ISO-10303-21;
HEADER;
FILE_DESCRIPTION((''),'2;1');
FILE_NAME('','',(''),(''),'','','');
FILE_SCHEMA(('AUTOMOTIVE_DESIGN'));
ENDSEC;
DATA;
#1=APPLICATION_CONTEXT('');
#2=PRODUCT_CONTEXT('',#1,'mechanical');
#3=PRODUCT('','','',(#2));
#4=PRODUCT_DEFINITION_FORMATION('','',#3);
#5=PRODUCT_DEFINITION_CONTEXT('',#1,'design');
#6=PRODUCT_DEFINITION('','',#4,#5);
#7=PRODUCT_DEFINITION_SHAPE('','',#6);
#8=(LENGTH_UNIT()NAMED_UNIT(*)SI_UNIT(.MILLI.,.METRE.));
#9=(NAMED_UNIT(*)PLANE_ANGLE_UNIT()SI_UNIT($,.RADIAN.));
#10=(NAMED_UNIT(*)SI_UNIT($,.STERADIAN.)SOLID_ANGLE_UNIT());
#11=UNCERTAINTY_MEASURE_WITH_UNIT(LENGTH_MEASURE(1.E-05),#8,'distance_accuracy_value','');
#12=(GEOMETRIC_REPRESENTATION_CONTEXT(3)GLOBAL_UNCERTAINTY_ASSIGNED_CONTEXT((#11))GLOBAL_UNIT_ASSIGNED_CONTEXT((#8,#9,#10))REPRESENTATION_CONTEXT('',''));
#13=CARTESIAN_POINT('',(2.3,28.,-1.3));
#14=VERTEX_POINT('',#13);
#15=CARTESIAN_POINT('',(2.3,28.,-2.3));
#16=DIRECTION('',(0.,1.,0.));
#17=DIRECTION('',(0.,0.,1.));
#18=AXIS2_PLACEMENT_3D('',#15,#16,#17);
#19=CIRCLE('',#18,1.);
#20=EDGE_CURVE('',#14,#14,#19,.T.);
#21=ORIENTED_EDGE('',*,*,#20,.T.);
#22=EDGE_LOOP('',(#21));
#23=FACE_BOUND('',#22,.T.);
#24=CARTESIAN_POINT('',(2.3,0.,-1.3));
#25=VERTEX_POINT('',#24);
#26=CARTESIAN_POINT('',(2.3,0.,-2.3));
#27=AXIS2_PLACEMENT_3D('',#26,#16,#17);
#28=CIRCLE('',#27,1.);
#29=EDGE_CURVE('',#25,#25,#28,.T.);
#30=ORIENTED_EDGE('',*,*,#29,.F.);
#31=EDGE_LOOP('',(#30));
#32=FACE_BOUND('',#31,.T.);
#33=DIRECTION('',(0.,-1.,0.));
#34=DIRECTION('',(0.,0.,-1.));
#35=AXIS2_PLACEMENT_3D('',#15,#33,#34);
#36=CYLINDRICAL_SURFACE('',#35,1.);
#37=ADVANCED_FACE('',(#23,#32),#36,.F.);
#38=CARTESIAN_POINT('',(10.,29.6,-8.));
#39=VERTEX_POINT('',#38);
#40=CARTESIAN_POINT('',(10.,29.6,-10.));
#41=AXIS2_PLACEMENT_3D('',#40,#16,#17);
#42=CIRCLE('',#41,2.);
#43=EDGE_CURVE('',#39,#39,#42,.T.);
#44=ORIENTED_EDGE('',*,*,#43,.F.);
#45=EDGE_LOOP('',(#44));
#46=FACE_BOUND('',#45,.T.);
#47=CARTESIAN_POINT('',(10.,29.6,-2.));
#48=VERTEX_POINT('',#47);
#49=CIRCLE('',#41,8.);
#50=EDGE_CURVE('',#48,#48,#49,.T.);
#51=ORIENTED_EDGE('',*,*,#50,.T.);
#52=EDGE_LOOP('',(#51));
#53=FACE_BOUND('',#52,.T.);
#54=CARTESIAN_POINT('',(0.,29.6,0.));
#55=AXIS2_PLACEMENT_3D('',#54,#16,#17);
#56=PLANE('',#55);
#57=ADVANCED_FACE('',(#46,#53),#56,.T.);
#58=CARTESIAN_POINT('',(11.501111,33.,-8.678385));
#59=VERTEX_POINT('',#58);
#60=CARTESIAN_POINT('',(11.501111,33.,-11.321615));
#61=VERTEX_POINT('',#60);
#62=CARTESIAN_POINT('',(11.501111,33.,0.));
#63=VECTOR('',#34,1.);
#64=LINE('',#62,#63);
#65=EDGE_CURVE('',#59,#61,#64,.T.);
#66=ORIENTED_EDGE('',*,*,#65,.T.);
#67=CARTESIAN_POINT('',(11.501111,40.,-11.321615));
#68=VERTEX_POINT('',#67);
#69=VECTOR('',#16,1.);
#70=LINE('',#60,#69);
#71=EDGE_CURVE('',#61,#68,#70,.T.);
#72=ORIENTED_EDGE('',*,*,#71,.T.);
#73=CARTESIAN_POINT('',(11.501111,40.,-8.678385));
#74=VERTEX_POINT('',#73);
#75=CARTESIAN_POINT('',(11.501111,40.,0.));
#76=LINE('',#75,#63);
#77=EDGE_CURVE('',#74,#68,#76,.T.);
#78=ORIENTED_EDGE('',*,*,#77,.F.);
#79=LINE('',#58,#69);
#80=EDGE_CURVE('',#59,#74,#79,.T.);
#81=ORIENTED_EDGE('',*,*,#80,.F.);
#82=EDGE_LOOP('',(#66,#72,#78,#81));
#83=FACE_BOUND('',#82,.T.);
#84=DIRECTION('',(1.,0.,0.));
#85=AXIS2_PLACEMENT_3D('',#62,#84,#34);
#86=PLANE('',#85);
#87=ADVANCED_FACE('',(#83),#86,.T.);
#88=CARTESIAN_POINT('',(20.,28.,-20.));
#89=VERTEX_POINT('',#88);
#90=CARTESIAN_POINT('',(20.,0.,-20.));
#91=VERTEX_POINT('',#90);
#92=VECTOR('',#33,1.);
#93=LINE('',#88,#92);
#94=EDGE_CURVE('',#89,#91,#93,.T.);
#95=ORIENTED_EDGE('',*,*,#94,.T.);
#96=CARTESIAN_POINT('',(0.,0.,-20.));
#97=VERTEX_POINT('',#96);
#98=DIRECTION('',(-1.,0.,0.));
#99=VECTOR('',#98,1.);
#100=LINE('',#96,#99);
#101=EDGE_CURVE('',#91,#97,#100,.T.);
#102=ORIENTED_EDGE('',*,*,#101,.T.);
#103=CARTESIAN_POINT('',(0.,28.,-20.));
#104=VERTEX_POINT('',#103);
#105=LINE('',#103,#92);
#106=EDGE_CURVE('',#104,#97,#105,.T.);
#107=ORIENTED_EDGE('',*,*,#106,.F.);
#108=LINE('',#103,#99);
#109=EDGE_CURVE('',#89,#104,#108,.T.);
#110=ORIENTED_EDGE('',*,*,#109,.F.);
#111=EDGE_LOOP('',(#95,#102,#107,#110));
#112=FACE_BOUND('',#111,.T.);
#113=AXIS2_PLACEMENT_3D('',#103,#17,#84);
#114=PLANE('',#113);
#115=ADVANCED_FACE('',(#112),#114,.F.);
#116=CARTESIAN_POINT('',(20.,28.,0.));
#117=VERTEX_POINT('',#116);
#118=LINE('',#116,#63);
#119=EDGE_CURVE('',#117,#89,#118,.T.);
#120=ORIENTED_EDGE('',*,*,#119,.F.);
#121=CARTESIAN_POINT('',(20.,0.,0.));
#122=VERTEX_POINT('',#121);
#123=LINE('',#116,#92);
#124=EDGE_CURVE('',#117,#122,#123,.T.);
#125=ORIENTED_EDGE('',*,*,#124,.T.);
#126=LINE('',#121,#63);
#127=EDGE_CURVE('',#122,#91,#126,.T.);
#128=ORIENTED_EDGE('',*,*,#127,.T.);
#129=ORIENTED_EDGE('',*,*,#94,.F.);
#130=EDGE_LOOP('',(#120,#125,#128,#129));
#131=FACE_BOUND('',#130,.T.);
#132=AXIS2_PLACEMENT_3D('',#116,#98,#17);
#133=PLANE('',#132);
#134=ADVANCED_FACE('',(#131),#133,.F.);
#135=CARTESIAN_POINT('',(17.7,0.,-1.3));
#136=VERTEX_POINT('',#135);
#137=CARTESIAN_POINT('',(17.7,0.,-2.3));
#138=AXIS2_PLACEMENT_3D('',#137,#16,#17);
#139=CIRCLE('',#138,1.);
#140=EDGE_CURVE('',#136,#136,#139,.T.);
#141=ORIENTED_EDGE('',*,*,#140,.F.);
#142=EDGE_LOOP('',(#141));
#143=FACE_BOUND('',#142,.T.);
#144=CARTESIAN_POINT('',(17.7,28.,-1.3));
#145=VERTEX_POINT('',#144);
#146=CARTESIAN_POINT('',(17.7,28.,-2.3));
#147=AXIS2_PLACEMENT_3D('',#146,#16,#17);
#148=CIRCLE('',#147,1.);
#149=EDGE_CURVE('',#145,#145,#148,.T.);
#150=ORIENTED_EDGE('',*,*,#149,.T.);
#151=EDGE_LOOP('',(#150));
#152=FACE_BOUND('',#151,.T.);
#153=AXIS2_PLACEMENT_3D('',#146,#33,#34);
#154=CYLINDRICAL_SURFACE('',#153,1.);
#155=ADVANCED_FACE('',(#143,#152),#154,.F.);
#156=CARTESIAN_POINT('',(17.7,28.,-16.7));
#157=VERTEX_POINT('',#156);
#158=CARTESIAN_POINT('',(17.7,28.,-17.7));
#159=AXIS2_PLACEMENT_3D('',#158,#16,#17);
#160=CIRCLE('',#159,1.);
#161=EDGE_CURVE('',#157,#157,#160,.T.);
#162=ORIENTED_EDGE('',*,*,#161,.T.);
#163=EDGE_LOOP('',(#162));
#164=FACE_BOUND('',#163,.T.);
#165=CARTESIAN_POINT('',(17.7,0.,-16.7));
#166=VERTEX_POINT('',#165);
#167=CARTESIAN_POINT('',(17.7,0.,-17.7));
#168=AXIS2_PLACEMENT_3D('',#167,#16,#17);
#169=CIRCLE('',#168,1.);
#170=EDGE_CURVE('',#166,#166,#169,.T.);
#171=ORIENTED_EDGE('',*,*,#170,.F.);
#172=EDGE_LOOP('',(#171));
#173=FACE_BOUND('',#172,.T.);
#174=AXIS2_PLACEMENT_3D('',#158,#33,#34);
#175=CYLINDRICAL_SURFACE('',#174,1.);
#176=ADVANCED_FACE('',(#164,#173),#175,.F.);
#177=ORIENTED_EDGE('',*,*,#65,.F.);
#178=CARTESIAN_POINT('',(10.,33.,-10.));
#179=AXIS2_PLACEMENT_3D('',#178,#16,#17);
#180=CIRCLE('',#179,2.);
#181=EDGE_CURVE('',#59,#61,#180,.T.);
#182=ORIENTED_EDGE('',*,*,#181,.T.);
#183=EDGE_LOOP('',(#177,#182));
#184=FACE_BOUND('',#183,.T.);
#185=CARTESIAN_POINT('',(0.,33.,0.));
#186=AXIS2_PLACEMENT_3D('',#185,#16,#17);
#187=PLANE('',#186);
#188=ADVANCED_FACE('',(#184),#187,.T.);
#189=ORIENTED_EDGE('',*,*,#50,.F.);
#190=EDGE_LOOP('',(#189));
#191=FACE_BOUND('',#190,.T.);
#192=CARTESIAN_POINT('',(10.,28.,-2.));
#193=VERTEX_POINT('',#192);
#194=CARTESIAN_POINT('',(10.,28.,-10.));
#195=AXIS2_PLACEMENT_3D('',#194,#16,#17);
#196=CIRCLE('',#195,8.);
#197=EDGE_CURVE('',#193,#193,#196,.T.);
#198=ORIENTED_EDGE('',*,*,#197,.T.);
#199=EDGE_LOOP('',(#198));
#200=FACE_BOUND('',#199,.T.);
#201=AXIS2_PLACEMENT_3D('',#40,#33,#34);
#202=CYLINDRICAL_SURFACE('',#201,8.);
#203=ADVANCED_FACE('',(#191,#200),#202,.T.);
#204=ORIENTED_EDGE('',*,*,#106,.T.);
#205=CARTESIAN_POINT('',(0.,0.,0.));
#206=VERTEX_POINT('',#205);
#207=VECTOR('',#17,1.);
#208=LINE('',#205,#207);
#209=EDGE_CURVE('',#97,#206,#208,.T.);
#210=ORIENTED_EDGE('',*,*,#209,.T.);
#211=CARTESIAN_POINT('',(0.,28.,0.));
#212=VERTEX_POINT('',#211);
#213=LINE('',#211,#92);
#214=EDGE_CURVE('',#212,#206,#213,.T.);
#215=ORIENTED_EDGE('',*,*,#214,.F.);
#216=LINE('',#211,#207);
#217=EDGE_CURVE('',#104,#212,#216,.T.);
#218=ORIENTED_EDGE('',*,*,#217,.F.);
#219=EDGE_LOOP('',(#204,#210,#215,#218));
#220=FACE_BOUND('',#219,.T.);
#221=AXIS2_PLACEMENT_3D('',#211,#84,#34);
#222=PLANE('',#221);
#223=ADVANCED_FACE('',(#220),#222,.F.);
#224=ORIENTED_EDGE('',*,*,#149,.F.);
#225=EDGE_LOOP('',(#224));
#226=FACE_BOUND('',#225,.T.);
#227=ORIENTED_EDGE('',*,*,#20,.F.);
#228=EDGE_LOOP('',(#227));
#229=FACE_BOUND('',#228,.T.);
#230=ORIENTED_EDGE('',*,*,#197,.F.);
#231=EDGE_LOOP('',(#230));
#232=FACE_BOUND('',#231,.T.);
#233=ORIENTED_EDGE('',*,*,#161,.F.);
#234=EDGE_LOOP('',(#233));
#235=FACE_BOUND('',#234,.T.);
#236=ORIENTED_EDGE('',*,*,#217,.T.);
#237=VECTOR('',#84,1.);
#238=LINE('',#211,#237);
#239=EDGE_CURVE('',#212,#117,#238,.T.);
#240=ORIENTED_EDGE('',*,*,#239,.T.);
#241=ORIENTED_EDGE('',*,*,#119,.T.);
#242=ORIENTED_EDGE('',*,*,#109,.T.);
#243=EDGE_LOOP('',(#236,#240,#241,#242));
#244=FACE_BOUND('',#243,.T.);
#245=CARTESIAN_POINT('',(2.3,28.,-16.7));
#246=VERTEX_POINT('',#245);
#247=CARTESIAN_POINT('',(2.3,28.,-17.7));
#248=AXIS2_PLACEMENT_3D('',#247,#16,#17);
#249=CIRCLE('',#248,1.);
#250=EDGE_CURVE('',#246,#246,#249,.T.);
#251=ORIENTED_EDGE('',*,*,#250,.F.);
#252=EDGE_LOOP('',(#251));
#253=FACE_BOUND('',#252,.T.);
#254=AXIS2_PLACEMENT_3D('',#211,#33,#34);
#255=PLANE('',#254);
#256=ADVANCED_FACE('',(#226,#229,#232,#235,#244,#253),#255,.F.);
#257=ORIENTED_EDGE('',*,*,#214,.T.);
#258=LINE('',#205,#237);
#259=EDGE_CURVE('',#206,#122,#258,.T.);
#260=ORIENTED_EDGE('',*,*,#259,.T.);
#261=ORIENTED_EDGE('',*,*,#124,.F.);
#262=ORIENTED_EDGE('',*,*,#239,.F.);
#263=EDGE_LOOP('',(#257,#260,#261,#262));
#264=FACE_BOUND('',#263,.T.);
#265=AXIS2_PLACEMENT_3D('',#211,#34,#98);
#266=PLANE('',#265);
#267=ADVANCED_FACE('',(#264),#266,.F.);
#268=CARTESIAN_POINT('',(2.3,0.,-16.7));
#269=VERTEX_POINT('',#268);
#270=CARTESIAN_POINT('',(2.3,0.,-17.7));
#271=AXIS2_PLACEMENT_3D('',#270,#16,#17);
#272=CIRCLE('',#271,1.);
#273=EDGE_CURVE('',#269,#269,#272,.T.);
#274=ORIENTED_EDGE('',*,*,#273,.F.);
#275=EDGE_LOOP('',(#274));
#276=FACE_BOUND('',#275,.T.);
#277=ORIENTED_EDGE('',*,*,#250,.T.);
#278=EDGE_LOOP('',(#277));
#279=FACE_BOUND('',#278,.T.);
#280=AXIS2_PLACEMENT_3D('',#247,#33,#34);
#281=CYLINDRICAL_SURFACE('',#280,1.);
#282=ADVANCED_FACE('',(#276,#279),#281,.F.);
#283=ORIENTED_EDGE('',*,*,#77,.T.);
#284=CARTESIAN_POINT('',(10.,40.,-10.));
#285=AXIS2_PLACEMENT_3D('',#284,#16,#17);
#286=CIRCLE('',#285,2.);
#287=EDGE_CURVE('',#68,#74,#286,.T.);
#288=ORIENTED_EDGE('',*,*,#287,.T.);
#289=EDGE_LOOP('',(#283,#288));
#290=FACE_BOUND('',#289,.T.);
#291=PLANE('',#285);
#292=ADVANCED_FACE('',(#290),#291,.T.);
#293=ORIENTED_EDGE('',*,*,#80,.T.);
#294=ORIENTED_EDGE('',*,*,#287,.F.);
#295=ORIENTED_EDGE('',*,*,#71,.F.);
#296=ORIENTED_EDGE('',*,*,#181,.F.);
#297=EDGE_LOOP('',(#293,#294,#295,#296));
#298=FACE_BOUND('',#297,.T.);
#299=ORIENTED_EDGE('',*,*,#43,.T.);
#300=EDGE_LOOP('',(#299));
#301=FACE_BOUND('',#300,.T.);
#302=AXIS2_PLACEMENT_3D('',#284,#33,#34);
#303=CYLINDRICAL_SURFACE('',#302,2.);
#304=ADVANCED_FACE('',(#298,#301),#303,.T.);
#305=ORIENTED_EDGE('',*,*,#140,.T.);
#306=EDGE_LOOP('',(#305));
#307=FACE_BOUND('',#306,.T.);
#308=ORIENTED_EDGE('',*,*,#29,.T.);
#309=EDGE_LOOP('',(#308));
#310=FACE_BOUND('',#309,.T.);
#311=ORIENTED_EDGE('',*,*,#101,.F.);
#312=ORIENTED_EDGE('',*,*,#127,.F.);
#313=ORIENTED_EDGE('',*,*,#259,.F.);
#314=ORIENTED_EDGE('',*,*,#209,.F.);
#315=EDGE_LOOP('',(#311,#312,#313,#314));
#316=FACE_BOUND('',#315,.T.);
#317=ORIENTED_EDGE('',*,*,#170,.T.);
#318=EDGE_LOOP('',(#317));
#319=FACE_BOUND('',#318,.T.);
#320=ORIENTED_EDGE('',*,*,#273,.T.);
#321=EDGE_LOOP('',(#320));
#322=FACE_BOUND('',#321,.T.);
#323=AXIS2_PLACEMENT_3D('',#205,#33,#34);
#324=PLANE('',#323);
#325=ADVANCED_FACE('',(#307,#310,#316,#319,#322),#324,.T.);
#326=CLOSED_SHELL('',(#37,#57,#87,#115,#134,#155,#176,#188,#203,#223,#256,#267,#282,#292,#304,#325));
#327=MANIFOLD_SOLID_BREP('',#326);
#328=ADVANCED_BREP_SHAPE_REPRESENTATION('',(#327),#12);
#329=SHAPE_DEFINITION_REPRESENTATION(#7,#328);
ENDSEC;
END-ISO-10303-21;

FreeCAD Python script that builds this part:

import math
import FreeCAD as App
import Part
import Sketcher
Q = App.Units.Quantity

doc = App.newDocument("Part")
body = doc.addObject("PartDesign::Body", "Body")

sketch1 = body.newObject("Sketcher::SketchObject", "Sketch")
sketch1.AttachmentSupport = (doc.getObject("XZ_Plane"), [""])
sketch1.MapMode = "FlatFace"
sketch1.addGeometry(Part.LineSegment(App.Vector(0, -20, 0), App.Vector(0, 0, 0)), False)
sketch1.addGeometry(Part.LineSegment(App.Vector(0, 0, 0), App.Vector(20, 0, 0)), False)
sketch1.addGeometry(Part.LineSegment(App.Vector(20, 0, 0), App.Vector(20, -20, 0)), False)
sketch1.addGeometry(Part.LineSegment(App.Vector(20, -20, 0), App.Vector(0, -20, 0)), False)
sketch1.addGeometry(Part.Circle(App.Vector(2.3, -2.3, 0), App.Vector(0, 0, 1), 1), False)
sketch1.addGeometry(Part.Circle(App.Vector(17.7, -2.3, 0), App.Vector(0, 0, 1), 1), False)
sketch1.addGeometry(Part.Circle(App.Vector(2.3, -17.7, 0), App.Vector(0, 0, 1), 1), False)
sketch1.addGeometry(Part.Circle(App.Vector(17.7, -17.7, 0), App.Vector(0, 0, 1), 1), False)
sketch1.addConstraint(Sketcher.Constraint("Coincident", 0, 2, 1, 1))
sketch1.addConstraint(Sketcher.Constraint("Coincident", 1, 2, 2, 1))
sketch1.addConstraint(Sketcher.Constraint("Coincident", 2, 2, 3, 1))
sketch1.addConstraint(Sketcher.Constraint("Coincident", 3, 2, 0, 1))
sketch1.addConstraint(Sketcher.Constraint("Vertical", 0))
sketch1.addConstraint(Sketcher.Constraint("Horizontal", 1))
sketch1.addConstraint(Sketcher.Constraint("Vertical", 2))
sketch1.addConstraint(Sketcher.Constraint("Horizontal", 3))
sketch1.addConstraint(Sketcher.Constraint("Coincident", 0, 2, -1, 1))
sketch1.addConstraint(Sketcher.Constraint("Equal", 4, 5))
sketch1.addConstraint(Sketcher.Constraint("Equal", 5, 6))
sketch1.addConstraint(Sketcher.Constraint("Equal", 6, 7))
sketch1.addConstraint(Sketcher.Constraint("Horizontal", 4, 3, 5, 3))
sketch1.addConstraint(Sketcher.Constraint("Horizontal", 6, 3, 7, 3))
sketch1.addConstraint(Sketcher.Constraint("Vertical", 4, 3, 6, 3))
sketch1.addConstraint(Sketcher.Constraint("Vertical", 5, 3, 7, 3))
sketch1.addConstraint(Sketcher.Constraint("Equal", 3, 0))
sketch1.addConstraint(Sketcher.Constraint("Diameter", 4, Q("2 mm")))
sketch1.addConstraint(Sketcher.Constraint("DistanceX", 1, 1, 1, 2, Q("20 mm")))
sketch1.addConstraint(Sketcher.Constraint("DistanceX", -1, 1, 4, 3, Q("2.3 mm")))
sketch1.addConstraint(Sketcher.Constraint("DistanceY", 4, 3, -1, 1, Q("2.3 mm")))
sketch1.addConstraint(Sketcher.Constraint("DistanceX", -1, 1, 5, 3, Q("17.7 mm")))
sketch1.addConstraint(Sketcher.Constraint("DistanceY", 6, 3, -1, 1, Q("17.7 mm")))
pad1 = body.newObject("PartDesign::Pad", "Pad")
pad1.Profile = sketch1
pad1.Length = 28
pad1.Reversed = True

sketch2 = body.newObject("Sketcher::SketchObject", "Sketch001")
sketch2.AttachmentSupport = (doc.getObject("XZ_Plane"), [""])
sketch2.MapMode = "FlatFace"
sketch2.AttachmentOffset = App.Placement(App.Vector(0, 0, -28), App.Rotation())
sketch2.addGeometry(Part.Circle(App.Vector(10, -10, 0), App.Vector(0, 0, 1), 8), False)
sketch2.addConstraint(Sketcher.Constraint("Diameter", 0, Q("16 mm")))
sketch2.addConstraint(Sketcher.Constraint("DistanceX", -1, 1, 0, 3, Q("10 mm")))
sketch2.addConstraint(Sketcher.Constraint("DistanceY", 0, 3, -1, 1, Q("10 mm")))
pad2 = body.newObject("PartDesign::Pad", "Pad001")
pad2.Profile = sketch2
pad2.Length = 1.6
pad2.Reversed = True

sketch3 = body.newObject("Sketcher::SketchObject", "Sketch002")
sketch3.AttachmentSupport = (doc.getObject("XZ_Plane"), [""])
sketch3.MapMode = "FlatFace"
sketch3.AttachmentOffset = App.Placement(App.Vector(0, 0, -29.6), App.Rotation())
sketch3.addGeometry(Part.Circle(App.Vector(10, -10, 0), App.Vector(0, 0, 1), 2), False)
sketch3.addConstraint(Sketcher.Constraint("Diameter", 0, Q("4 mm")))
sketch3.addConstraint(Sketcher.Constraint("DistanceX", -1, 1, 0, 3, Q("10 mm")))
sketch3.addConstraint(Sketcher.Constraint("DistanceY", 0, 3, -1, 1, Q("10 mm")))
pad3 = body.newObject("PartDesign::Pad", "Pad002")
pad3.Profile = sketch3
pad3.Length = 10.4
pad3.Reversed = True

sketch4 = body.newObject("Sketcher::SketchObject", "Sketch003")
sketch4.AttachmentSupport = (doc.getObject("XZ_Plane"), [""])
sketch4.MapMode = "FlatFace"
sketch4.AttachmentOffset = App.Placement(App.Vector(0, 0, -33), App.Rotation())
sketch4.addGeometry(Part.LineSegment(App.Vector(11.5, -11.3, 0), App.Vector(11.5, -8.7, 0)), False)
sketch4.addGeometry(Part.ArcOfCircle(Part.Circle(App.Vector(10, -10, 0), App.Vector(0, 0, 1), 2), math.radians(0), math.radians(41)), False)
sketch4.addGeometry(Part.ArcOfCircle(Part.Circle(App.Vector(10, -10, 0), App.Vector(0, 0, 1), 2), math.radians(-41), math.radians(0)), False)
sketch4.addConstraint(Sketcher.Constraint("Coincident", 0, 2, 1, 2))
sketch4.addConstraint(Sketcher.Constraint("Tangent", 1, 1, 2, 2))
sketch4.addConstraint(Sketcher.Constraint("Coincident", 2, 1, 0, 1))
sketch4.addConstraint(Sketcher.Constraint("Vertical", 0))
sketch4.addConstraint(Sketcher.Constraint("Equal", 1, 2))
sketch4.addConstraint(Sketcher.Constraint("Horizontal", 2, 3, 1, 1))
sketch4.addConstraint(Sketcher.Constraint("Radius", 1, Q("2 mm")))
sketch4.addConstraint(Sketcher.Constraint("DistanceX", -1, 1, 1, 3, Q("10 mm")))
sketch4.addConstraint(Sketcher.Constraint("DistanceY", 1, 3, -1, 1, Q("10 mm")))
sketch4.addConstraint(Sketcher.Constraint("DistanceY", 0, 1, 0, 2, Q("2.64323 mm")))
pocket1 = body.newObject("PartDesign::Pocket", "Pocket")
pocket1.Profile = sketch4
pocket1.Length = 7

doc.recompute()
